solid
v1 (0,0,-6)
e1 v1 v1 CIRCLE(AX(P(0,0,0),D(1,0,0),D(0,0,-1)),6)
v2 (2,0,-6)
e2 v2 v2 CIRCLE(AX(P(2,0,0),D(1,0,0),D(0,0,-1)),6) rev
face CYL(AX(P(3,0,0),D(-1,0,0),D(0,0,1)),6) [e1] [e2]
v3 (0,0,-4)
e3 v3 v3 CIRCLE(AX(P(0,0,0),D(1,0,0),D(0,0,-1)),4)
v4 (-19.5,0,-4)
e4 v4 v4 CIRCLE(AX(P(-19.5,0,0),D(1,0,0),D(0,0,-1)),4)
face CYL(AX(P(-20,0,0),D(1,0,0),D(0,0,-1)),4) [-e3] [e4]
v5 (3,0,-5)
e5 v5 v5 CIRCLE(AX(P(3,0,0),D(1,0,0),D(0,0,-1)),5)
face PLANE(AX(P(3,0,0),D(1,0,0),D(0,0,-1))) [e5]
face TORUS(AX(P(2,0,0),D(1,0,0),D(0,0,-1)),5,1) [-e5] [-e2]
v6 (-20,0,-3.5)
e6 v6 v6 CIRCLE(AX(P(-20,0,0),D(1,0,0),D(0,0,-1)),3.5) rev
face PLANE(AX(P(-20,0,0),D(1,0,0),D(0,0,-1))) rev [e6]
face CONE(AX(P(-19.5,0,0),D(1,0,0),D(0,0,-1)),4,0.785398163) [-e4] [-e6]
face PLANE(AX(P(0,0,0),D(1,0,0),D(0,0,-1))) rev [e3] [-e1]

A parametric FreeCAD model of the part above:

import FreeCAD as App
import Part
import Sketcher


def edges_at(feature, points):
    """Names of the edges that pass closest to the given points."""
    edges = feature.Shape.Edges
    near = lambda p: min(range(len(edges)), key=lambda i: edges[i].distToShape(Part.Vertex(*p))[0])
    return sorted({f"Edge{near(p) + 1}" for p in points})

doc = App.newDocument("Part")
body = doc.addObject("PartDesign::Body", "Body")

# Sketch on YZ plane
sketch1 = body.newObject("Sketcher::SketchObject", "Sketch")
sketch1.AttachmentSupport = (doc.getObject("YZ_Plane"), [""])
sketch1.MapMode = "FlatFace"
sketch1.addGeometry(Part.Circle(App.Vector(0, 0, 0), App.Vector(0, 0, 1), 6), False)
sketch1.addGeometry(Part.Circle(App.Vector(0, 0, 0), App.Vector(0, 0, 1), 4), False)
sketch1.addConstraint(Sketcher.Constraint("Coincident", 0, 3, -1, 1))
sketch1.addConstraint(Sketcher.Constraint("Coincident", 1, 3, -1, 1))
sketch1.addConstraint(Sketcher.Constraint("Diameter", 0, 12.0))
sketch1.addConstraint(Sketcher.Constraint("Diameter", 1, 8.0))
pad1 = body.newObject("PartDesign::Pad", "Pad")
pad1.Profile = sketch1
pad1.Length = 3

# Sketch on YZ plane
sketch2 = body.newObject("Sketcher::SketchObject", "Sketch001")
sketch2.AttachmentSupport = (doc.getObject("YZ_Plane"), [""])
sketch2.MapMode = "FlatFace"
sketch2.AttachmentOffset = App.Placement(App.Vector(0, 0, -20), App.Rotation())
sketch2.addGeometry(Part.Circle(App.Vector(0, 0, 0), App.Vector(0, 0, 1), 4), False)
sketch2.addConstraint(Sketcher.Constraint("Coincident", 0, 3, -1, 1))
sketch2.addConstraint(Sketcher.Constraint("Diameter", 0, 8.0))
pad2 = body.newObject("PartDesign::Pad", "Pad001")
pad2.Profile = sketch2
pad2.Length = 23
doc.recompute()

fillet = body.newObject("PartDesign::Fillet", "Fillet")
fillet.Base = (pad2, edges_at(pad2, [(3, 0, 6)]))
fillet.Radius = 1
doc.recompute()

chamfer = body.newObject("PartDesign::Chamfer", "Chamfer")
chamfer.Base = (fillet, edges_at(fillet, [(-20, 0, 4)]))
chamfer.Size = 0.5

doc.recompute()
